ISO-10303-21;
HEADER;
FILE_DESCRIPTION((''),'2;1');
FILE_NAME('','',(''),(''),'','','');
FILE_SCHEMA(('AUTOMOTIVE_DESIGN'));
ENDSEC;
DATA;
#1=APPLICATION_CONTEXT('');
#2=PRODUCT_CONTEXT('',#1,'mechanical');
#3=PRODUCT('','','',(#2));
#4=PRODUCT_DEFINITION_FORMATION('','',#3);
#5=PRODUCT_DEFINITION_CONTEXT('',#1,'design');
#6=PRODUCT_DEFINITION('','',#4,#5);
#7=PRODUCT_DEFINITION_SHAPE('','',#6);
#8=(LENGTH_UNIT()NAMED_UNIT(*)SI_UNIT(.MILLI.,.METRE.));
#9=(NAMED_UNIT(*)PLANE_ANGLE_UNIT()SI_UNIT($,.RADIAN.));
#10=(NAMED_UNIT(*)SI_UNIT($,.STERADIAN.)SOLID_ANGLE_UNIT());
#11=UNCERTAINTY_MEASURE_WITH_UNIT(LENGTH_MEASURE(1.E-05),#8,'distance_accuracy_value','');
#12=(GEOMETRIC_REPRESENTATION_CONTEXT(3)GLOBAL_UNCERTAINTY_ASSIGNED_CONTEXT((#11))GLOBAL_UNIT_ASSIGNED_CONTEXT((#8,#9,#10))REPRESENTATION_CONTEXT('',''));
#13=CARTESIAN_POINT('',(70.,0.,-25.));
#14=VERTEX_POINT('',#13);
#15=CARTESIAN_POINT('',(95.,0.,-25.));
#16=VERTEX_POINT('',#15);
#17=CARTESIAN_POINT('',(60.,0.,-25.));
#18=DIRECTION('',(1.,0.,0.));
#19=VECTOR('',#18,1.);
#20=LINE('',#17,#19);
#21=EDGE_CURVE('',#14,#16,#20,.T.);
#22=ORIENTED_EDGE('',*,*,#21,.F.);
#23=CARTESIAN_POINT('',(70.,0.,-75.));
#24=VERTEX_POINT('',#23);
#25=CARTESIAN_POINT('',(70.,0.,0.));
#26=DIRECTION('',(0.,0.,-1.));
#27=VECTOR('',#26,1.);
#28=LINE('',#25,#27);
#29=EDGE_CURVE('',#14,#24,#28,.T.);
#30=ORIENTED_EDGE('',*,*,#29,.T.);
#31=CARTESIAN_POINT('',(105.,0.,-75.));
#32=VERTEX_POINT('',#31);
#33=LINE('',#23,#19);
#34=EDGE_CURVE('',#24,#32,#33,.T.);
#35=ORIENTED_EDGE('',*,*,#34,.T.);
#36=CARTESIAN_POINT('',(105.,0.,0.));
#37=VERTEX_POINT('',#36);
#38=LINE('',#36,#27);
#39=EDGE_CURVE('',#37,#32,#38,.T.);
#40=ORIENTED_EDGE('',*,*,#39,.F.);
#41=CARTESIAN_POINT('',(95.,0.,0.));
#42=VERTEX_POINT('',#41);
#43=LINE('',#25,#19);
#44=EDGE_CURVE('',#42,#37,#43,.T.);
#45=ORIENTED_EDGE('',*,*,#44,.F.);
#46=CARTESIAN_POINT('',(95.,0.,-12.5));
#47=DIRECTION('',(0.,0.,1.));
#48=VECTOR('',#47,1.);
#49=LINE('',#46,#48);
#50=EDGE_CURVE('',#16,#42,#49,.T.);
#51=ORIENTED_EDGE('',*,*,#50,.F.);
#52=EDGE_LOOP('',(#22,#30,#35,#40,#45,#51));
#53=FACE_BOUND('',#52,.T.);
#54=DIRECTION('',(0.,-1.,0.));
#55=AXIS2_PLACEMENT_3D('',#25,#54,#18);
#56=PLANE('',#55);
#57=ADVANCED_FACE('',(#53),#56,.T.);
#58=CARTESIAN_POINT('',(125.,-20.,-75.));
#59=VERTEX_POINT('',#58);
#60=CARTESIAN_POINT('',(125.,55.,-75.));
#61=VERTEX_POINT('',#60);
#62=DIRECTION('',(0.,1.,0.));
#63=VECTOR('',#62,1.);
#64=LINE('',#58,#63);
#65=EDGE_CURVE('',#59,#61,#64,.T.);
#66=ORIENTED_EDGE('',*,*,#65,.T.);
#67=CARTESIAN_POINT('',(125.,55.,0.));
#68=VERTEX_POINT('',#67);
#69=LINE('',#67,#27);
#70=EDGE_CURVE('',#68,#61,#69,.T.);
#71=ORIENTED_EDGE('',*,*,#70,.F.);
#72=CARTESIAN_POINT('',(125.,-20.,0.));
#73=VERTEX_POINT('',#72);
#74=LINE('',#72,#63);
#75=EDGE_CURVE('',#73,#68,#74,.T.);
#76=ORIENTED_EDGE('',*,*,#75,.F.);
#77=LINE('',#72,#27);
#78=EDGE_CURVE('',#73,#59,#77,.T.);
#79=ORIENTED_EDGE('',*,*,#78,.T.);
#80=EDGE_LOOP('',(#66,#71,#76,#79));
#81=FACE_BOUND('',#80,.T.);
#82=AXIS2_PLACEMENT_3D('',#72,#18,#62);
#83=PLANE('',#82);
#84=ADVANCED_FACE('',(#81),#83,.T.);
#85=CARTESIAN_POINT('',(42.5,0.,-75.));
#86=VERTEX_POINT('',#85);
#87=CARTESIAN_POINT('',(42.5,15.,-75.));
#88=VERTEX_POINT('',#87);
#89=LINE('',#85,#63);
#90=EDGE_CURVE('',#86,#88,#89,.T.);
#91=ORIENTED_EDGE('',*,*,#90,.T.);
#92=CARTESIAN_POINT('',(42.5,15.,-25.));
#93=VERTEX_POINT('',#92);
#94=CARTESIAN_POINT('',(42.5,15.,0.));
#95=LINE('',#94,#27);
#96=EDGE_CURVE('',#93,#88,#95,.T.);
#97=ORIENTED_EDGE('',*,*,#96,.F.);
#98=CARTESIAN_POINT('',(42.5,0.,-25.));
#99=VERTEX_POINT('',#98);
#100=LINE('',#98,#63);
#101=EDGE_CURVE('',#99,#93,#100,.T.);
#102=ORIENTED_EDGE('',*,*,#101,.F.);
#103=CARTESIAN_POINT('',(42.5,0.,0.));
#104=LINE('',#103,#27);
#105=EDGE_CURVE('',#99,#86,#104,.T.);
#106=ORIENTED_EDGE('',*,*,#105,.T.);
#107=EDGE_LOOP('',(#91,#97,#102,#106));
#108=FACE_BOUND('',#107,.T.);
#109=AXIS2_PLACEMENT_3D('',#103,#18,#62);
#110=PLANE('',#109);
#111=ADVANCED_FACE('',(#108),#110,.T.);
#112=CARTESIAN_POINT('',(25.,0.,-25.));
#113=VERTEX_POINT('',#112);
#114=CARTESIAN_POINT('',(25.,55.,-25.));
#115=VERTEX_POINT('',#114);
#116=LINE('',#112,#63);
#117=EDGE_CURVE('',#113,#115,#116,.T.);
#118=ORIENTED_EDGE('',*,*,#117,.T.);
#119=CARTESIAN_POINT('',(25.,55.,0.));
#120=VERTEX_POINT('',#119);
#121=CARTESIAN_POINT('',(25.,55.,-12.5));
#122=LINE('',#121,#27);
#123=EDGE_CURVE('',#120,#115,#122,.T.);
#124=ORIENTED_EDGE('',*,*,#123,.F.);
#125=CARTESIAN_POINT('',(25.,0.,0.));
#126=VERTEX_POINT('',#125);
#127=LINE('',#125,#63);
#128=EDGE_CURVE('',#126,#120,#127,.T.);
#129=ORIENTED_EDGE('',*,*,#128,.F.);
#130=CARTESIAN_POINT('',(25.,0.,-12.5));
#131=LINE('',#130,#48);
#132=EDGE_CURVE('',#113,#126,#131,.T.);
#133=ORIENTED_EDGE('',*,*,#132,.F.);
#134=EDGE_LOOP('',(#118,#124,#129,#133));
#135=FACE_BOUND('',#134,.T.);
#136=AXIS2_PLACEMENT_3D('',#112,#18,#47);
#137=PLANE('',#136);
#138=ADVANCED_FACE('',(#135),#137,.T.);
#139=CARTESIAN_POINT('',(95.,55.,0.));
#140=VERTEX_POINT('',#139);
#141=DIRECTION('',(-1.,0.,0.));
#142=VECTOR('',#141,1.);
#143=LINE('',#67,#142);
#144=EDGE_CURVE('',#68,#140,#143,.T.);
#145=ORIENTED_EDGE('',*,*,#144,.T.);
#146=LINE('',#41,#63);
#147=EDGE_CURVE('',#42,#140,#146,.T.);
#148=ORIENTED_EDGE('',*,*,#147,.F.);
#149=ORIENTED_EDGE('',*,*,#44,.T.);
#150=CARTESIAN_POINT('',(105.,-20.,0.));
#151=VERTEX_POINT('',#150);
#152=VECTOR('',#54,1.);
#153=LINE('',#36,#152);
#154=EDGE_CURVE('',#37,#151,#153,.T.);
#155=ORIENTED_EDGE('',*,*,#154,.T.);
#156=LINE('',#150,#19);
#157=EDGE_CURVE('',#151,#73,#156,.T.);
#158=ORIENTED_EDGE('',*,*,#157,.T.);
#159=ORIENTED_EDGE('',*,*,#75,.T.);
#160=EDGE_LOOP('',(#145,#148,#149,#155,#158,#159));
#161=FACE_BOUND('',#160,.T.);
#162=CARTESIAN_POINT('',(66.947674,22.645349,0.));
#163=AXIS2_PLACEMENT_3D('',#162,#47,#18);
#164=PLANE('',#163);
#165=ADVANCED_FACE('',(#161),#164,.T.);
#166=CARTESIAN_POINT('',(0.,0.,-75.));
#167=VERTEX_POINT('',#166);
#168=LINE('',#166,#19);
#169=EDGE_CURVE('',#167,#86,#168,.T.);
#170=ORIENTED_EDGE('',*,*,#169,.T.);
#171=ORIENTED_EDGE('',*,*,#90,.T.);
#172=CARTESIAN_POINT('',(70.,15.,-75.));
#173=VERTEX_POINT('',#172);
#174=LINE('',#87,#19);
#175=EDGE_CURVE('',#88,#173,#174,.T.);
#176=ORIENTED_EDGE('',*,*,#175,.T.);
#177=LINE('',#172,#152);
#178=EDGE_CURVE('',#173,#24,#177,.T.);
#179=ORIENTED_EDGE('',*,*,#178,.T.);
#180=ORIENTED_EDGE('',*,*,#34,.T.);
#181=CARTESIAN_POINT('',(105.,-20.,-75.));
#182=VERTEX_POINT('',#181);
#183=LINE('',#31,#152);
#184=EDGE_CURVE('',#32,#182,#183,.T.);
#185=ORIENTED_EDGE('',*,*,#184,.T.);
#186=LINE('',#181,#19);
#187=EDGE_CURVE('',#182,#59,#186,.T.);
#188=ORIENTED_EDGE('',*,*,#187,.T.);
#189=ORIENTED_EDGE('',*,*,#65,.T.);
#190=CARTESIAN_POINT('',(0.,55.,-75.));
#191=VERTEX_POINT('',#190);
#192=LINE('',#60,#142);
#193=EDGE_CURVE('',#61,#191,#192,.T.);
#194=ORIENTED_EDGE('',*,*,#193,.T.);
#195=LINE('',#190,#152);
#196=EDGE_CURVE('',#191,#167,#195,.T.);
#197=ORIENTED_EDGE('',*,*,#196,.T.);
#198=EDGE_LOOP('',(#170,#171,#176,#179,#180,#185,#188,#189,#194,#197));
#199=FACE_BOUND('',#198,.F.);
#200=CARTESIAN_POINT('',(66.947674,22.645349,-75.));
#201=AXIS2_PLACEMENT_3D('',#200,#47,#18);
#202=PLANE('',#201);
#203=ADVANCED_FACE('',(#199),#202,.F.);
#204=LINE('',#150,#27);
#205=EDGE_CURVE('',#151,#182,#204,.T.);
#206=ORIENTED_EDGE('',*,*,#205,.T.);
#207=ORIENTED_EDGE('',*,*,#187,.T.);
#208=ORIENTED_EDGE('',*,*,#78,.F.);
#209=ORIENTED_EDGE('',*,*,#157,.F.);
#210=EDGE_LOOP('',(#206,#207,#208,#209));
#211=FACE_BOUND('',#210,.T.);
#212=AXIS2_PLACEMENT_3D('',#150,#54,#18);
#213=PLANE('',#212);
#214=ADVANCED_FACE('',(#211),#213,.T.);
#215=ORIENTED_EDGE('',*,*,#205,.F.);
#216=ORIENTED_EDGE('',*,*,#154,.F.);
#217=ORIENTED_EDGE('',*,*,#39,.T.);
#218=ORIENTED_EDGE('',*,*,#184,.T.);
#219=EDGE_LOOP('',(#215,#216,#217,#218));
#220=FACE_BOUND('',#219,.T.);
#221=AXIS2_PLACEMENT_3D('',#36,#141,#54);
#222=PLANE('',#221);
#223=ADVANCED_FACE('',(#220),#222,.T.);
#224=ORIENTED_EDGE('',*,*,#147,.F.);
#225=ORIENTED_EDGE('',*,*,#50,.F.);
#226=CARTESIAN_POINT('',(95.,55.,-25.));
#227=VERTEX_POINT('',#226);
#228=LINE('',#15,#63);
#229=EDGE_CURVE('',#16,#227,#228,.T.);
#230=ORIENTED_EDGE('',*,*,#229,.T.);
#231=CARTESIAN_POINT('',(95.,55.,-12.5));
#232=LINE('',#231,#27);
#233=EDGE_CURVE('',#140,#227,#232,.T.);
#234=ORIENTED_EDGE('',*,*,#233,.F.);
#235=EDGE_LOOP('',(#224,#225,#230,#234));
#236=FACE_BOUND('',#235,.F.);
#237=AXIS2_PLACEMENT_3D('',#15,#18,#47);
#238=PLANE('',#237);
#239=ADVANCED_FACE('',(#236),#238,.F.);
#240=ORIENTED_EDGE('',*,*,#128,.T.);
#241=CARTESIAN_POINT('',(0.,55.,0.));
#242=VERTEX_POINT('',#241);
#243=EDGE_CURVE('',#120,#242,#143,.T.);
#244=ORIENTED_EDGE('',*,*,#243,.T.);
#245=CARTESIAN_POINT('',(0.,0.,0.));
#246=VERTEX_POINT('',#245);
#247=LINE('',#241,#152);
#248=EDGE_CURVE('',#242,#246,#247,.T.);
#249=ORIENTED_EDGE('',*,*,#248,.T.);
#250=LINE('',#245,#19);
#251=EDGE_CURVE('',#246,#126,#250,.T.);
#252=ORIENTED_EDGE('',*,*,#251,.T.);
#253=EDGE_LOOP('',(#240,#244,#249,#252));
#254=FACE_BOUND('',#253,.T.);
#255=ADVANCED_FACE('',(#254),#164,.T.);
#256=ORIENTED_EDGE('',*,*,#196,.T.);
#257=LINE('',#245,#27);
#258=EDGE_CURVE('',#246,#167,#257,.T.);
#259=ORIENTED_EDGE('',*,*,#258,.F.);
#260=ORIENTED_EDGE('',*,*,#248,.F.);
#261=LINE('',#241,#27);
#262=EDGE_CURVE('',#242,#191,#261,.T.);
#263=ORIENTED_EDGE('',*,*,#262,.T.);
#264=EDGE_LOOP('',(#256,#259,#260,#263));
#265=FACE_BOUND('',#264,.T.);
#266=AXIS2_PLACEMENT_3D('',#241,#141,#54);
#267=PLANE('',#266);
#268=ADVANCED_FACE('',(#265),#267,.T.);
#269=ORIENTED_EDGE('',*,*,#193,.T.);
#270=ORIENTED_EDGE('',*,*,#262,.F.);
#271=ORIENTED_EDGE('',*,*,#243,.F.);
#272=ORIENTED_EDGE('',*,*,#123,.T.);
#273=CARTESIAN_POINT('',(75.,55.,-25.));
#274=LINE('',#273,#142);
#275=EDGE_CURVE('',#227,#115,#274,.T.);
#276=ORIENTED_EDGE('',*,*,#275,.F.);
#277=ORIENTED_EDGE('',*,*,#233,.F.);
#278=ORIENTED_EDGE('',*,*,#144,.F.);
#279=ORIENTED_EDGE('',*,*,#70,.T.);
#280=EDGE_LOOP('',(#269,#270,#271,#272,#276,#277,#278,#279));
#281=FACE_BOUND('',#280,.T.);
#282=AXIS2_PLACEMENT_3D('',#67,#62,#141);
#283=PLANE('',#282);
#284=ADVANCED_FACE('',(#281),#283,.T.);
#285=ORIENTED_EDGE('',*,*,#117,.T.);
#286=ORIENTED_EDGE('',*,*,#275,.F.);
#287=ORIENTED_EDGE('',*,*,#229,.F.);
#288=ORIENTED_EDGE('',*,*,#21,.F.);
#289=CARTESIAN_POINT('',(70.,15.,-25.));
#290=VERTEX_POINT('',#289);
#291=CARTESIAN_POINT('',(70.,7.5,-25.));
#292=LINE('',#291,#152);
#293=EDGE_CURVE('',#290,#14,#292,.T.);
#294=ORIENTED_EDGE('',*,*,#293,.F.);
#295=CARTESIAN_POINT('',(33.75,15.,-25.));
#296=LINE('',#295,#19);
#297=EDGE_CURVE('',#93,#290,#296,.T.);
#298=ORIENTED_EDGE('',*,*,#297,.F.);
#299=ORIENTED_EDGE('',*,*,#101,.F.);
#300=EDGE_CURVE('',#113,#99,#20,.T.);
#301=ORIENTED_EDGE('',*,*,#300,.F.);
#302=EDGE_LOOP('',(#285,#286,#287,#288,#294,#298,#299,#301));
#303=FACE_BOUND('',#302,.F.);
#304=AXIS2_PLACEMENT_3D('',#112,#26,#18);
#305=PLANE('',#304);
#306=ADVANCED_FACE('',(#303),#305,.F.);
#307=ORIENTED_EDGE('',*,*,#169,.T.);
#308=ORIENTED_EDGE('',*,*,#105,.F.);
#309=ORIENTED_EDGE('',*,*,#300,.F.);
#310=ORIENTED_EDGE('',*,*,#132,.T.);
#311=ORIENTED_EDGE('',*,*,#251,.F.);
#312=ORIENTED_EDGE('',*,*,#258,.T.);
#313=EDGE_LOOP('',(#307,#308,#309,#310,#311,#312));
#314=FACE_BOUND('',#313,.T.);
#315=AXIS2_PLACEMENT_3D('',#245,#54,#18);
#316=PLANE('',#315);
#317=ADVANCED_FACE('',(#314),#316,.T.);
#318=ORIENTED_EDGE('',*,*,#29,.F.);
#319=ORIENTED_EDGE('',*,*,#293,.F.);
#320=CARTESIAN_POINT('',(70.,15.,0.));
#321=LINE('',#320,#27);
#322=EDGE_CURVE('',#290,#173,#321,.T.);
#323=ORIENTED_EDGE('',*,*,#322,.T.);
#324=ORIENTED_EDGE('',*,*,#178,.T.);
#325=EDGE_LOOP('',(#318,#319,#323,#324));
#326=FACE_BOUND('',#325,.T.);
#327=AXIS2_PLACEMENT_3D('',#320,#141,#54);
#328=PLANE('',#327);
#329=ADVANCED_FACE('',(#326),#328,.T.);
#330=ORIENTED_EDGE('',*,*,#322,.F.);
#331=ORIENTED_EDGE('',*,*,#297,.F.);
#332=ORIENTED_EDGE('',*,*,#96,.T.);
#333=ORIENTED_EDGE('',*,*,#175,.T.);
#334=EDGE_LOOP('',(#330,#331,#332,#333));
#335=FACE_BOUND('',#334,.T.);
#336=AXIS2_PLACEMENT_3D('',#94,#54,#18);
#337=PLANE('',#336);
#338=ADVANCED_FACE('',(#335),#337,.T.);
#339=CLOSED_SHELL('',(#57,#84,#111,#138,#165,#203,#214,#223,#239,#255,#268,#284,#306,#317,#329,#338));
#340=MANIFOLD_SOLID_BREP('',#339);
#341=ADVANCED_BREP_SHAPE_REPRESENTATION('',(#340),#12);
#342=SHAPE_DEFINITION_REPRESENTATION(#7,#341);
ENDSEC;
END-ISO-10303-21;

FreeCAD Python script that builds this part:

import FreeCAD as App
import Part
import Sketcher
Q = App.Units.Quantity

doc = App.newDocument("Part")
body = doc.addObject("PartDesign::Body", "Body")

# Sketch on XY plane
sketch1 = body.newObject("Sketcher::SketchObject", "Sketch")
sketch1.AttachmentSupport = (doc.getObject("XY_Plane"), [""])
sketch1.MapMode = "FlatFace"
sketch1.addGeometry([
    Part.LineSegment(App.Vector(0, 55, 0), App.Vector(0, 0, 0)),  # 0
    Part.LineSegment(App.Vector(0, 0, 0), App.Vector(42, 0, 0)),  # 1
    Part.LineSegment(App.Vector(42, 0, 0), App.Vector(42, 15, 0)),  # 2
    Part.LineSegment(App.Vector(42, 15, 0), App.Vector(70, 15, 0)),  # 3
    Part.LineSegment(App.Vector(70, 15, 0), App.Vector(70, 0, 0)),  # 4
    Part.LineSegment(App.Vector(70, 0, 0), App.Vector(105, 0, 0)),  # 5
    Part.LineSegment(App.Vector(105, 0, 0), App.Vector(105, -20, 0)),  # 6
    Part.LineSegment(App.Vector(105, -20, 0), App.Vector(125, -20, 0)),  # 7
    Part.LineSegment(App.Vector(125, -20, 0), App.Vector(125, 55, 0)),  # 8
    Part.LineSegment(App.Vector(125, 55, 0), App.Vector(0, 55, 0)),  # 9
], False)
sketch1.addConstraint([
    Sketcher.Constraint("Coincident", 0, 2, 1, 1),
    Sketcher.Constraint("Coincident", 1, 2, 2, 1),
    Sketcher.Constraint("Coincident", 2, 2, 3, 1),
    Sketcher.Constraint("Coincident", 3, 2, 4, 1),
    Sketcher.Constraint("Coincident", 4, 2, 5, 1),
    Sketcher.Constraint("Coincident", 5, 2, 6, 1),
    Sketcher.Constraint("Coincident", 6, 2, 7, 1),
    Sketcher.Constraint("Coincident", 7, 2, 8, 1),
    Sketcher.Constraint("Coincident", 8, 2, 9, 1),
    Sketcher.Constraint("Coincident", 9, 2, 0, 1),
    Sketcher.Constraint("Vertical", 0),
    Sketcher.Constraint("Horizontal", 1),
    Sketcher.Constraint("Vertical", 2),
    Sketcher.Constraint("Horizontal", 3),
    Sketcher.Constraint("Vertical", 4),
    Sketcher.Constraint("Horizontal", 5),
    Sketcher.Constraint("Vertical", 6),
    Sketcher.Constraint("Horizontal", 7),
    Sketcher.Constraint("Vertical", 8),
    Sketcher.Constraint("Horizontal", 9),
    Sketcher.Constraint("Coincident", 0, 2, -1, 1),
    Sketcher.Constraint("PointOnObject", 4, 2, -1),
    Sketcher.Constraint("Equal", 7, 6),
    Sketcher.Constraint("DistanceX", 5, 1, 5, 2, Q("35 mm")),
    Sketcher.Constraint("DistanceX", 7, 1, 7, 2, Q("20 mm")),
    Sketcher.Constraint("DistanceX", 9, 2, 9, 1, Q("125 mm")),
    Sketcher.Constraint("DistanceY", 0, 2, 0, 1, Q("55 mm")),
    Sketcher.Constraint("DistanceY", 2, 1, 2, 2, Q("15 mm")),
    Sketcher.Constraint("DistanceX", 1, 1, 1, 2, Q("42.5 mm")),
])
pad1 = body.newObject("PartDesign::Pad", "Pad")
pad1.Profile = sketch1
pad1.Length = 75
pad1.Reversed = True

# Sketch on XZ plane
sketch2 = body.newObject("Sketcher::SketchObject", "Sketch001")
sketch2.AttachmentSupport = (doc.getObject("XZ_Plane"), [""])
sketch2.MapMode = "FlatFace"
sketch2.addGeometry([
    Part.LineSegment(App.Vector(25, 0, 0), App.Vector(25, -25, 0)),
    Part.LineSegment(App.Vector(25, -25, 0), App.Vector(95, -25, 0)),
    Part.LineSegment(App.Vector(95, -25, 0), App.Vector(95, 0, 0)),
    Part.LineSegment(App.Vector(95, 0, 0), App.Vector(25, 0, 0)),
], False)
sketch2.addConstraint([
    Sketcher.Constraint("Coincident", 0, 2, 1, 1),
    Sketcher.Constraint("Coincident", 1, 2, 2, 1),
    Sketcher.Constraint("Coincident", 2, 2, 3, 1),
    Sketcher.Constraint("Coincident", 3, 2, 0, 1),
    Sketcher.Constraint("Vertical", 0),
    Sketcher.Constraint("Horizontal", 1),
    Sketcher.Constraint("Vertical", 2),
    Sketcher.Constraint("Horizontal", 3),
    Sketcher.Constraint("PointOnObject", 2, 2, -1),
    Sketcher.Constraint("DistanceX", 1, 1, 1, 2, Q("70 mm")),
    Sketcher.Constraint("DistanceY", 0, 2, 0, 1, Q("25 mm")),
    Sketcher.Constraint("DistanceX", -1, 1, 0, 2, Q("25 mm")),
])
pocket1 = body.newObject("PartDesign::Pocket", "Pocket")
pocket1.Profile = sketch2
pocket1.Type = "ThroughAll"

doc.recompute()
